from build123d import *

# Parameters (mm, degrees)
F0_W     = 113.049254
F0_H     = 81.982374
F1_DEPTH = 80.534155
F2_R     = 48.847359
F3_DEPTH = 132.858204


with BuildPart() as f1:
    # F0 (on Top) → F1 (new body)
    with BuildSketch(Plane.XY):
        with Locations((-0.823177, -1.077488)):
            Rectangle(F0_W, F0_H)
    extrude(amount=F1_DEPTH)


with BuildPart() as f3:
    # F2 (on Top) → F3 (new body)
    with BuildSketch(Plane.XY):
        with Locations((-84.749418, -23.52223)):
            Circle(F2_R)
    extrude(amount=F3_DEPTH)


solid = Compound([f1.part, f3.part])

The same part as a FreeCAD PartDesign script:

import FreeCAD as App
import Part
import Sketcher
from FreeCAD import Vector
Q = App.Units.Quantity


def add_polygon(sketch, points):
    """Adds a closed chain of lines whose ends are joined by coincident constraints."""
    first, n = sketch.GeometryCount, len(points)
    for a, b in zip(points, points[1:] + points[:1]):
        sketch.addGeometry(Part.LineSegment(App.Vector(*a, 0), App.Vector(*b, 0)), False)
    for i in range(n):
        sketch.addConstraint(Sketcher.Constraint("Coincident", first + i, 2, first + (i + 1) % n, 1))

doc = App.newDocument("Part")
params = doc.addObject("Spreadsheet::Sheet", "Params")
for row, (alias, value) in enumerate([
    ("pad1_length", "80.534155 mm"),
    ("pad2_length", "132.858204 mm"),
], start=1):
    params.set(f"A{row}", alias)
    params.set(f"B{row}", "=" + value)
    params.setAlias(f"B{row}", alias)

body = doc.addObject("PartDesign::Body", "Body")

sketch1 = doc.addObject("Sketcher::SketchObject", "Sketch")
body.addObject(sketch1)
sketch1.AttachmentSupport = (doc.XY_Plane, [""])
sketch1.MapMode = "FlatFace"
add_polygon(sketch1, [(-57, 40), (-57, -42), (56, -42), (56, 40)])
sketch1.addConstraint([
    Sketcher.Constraint("Vertical", 0),
    Sketcher.Constraint("Horizontal", 1),
    Sketcher.Constraint("Vertical", 2),
    Sketcher.Constraint("Horizontal", 3),
    Sketcher.Constraint("DistanceY", -1, 1, 2, 2, Q("39.913699 mm")),
    Sketcher.Constraint("DistanceX", 1, 1, 1, 2, Q("113.049254 mm")),
    Sketcher.Constraint("DistanceY", 0, 2, 0, 1, Q("81.982374 mm")),
    Sketcher.Constraint("DistanceX", -1, 1, 1, 2, Q("55.70145 mm")),
])
pad1 = doc.addObject("PartDesign::Pad", "Pad")
body.addObject(pad1)
pad1.Profile = sketch1
pad1.setExpression("Length", "Params.pad1_length")
body2 = doc.addObject("PartDesign::Body", "Body001")

sketch2 = doc.addObject("Sketcher::SketchObject", "Sketch001")
body2.addObject(sketch2)
sketch2.AttachmentSupport = (doc.getObject("XY_Plane001"), [""])
sketch2.MapMode = "FlatFace"
sketch2.addGeometry(Part.Circle(Vector(-85, -24, 0), Vector(0, 0, 1), 49), False)
sketch2.addConstraint([
    Sketcher.Constraint("Diameter", 0, Q("97.694718 mm")),
    Sketcher.Constraint("DistanceX", 0, 3, -1, 1, Q("84.749418 mm")),
    Sketcher.Constraint("DistanceY", 0, 3, -1, 1, Q("23.52223 mm")),
])
pad2 = doc.addObject("PartDesign::Pad", "Pad001")
body2.addObject(pad2)
pad2.Profile = sketch2
pad2.setExpression("Length", "Params.pad2_length")

doc.recompute()
